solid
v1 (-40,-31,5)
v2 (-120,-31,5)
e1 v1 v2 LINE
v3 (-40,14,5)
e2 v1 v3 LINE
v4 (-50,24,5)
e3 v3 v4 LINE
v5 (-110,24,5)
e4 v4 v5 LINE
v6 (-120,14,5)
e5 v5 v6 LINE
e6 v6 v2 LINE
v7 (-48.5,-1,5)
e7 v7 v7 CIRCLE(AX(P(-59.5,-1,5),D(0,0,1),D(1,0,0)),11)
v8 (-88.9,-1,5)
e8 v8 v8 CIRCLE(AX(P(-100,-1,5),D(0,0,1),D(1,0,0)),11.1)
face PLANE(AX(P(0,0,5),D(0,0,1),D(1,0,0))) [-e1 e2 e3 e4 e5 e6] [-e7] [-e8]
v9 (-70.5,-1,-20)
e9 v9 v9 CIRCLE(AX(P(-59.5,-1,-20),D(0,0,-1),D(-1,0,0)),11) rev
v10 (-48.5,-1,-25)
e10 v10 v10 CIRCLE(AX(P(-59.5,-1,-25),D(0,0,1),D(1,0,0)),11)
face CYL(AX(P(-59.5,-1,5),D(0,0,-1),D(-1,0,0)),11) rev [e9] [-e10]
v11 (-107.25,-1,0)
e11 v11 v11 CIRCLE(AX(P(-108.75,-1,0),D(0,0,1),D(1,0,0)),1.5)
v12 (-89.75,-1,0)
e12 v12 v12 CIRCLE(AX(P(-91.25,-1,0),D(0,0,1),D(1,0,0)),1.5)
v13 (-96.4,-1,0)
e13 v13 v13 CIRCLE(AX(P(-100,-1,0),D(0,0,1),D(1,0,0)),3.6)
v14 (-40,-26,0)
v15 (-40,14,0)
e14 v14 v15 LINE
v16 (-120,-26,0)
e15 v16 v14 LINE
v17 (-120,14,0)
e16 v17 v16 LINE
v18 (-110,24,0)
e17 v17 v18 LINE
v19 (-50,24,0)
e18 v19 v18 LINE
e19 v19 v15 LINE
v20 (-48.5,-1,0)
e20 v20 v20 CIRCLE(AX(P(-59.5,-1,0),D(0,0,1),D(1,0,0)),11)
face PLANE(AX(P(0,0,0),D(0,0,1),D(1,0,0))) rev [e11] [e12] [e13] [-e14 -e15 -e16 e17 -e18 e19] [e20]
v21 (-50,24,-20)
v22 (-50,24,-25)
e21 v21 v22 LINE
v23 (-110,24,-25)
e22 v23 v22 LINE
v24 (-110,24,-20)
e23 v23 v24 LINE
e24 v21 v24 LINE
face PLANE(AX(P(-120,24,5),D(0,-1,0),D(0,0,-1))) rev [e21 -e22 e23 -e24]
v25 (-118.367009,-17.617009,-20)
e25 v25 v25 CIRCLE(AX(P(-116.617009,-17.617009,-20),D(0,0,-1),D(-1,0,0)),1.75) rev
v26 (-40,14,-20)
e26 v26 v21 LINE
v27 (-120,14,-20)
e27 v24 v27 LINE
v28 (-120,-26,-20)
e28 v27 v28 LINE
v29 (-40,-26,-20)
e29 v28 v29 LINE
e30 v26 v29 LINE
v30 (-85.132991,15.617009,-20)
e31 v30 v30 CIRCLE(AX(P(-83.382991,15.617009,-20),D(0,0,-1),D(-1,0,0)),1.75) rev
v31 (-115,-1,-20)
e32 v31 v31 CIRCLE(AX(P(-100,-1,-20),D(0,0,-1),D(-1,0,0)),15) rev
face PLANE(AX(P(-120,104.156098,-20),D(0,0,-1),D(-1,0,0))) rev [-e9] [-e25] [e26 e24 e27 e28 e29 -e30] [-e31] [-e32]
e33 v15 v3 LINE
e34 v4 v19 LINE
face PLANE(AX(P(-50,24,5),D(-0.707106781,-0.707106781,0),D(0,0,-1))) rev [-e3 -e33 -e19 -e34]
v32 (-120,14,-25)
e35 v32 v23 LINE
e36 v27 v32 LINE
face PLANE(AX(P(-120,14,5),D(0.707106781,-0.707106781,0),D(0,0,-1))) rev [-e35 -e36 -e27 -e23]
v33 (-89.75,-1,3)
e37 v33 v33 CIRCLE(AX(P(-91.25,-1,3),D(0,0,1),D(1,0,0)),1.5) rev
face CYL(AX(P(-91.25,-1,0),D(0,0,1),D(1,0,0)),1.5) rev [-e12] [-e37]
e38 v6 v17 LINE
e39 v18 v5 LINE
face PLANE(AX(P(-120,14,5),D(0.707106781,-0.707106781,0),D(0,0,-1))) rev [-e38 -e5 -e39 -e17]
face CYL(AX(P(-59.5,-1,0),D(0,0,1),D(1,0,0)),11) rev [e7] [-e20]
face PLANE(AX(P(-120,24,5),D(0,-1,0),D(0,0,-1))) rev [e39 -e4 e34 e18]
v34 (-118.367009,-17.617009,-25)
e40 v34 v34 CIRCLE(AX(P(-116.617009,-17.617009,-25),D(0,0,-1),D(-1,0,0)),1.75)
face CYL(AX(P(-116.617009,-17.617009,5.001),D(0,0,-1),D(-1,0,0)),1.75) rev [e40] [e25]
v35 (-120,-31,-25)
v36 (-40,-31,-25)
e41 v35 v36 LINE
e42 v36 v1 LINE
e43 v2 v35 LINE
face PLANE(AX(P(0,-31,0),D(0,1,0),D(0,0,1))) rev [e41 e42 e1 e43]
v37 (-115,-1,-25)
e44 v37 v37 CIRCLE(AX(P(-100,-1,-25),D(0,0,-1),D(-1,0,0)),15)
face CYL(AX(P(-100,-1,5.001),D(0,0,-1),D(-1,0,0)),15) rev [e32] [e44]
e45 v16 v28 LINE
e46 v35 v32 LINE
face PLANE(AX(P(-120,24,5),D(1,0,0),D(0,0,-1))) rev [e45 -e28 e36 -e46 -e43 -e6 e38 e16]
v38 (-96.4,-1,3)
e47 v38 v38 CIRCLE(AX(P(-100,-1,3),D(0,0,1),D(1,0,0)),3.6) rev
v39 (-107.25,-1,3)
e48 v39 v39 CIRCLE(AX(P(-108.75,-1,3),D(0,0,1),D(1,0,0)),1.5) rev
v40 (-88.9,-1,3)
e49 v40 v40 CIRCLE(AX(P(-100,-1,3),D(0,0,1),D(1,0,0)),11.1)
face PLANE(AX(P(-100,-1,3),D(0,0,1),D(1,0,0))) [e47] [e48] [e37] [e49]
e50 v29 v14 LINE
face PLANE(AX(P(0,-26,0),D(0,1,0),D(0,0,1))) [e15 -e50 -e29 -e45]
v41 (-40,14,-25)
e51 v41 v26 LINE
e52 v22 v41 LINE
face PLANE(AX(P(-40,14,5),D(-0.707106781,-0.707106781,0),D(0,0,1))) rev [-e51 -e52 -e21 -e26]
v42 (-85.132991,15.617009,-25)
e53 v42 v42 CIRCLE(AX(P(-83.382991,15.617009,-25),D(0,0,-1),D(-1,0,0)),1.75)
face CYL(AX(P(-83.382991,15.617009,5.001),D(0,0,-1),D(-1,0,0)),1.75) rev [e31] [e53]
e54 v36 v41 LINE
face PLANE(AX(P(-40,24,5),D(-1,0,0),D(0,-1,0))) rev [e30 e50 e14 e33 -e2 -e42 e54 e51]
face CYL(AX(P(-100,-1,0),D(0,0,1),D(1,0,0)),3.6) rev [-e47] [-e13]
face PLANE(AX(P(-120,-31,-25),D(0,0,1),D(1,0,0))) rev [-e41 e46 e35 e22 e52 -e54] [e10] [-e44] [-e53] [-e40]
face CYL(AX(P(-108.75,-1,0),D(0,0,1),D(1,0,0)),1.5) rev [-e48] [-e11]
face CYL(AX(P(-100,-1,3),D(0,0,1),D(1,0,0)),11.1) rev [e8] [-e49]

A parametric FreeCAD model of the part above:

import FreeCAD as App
import Part
import Sketcher
from FreeCAD import Vector


def edges_at(feature, points):
    """Names of the edges that pass closest to the given points."""
    edges = feature.Shape.Edges
    near = lambda p: min(range(len(edges)), key=lambda i: edges[i].distToShape(Part.Vertex(*p))[0])
    return sorted({f"Edge{near(p) + 1}" for p in points})

doc = App.newDocument("Part")
body = doc.addObject("PartDesign::Body", "Body")

sketch1 = body.newObject("Sketcher::SketchObject", "Sketch")
sketch1.AttachmentSupport = (doc.getObject("XY_Plane"), [""])
sketch1.MapMode = "FlatFace"
sketch1.addGeometry(Part.LineSegment(Vector(-120, 24, 0), Vector(-120, -26, 0)), False)
sketch1.addGeometry(Part.LineSegment(Vector(-120, -26, 0), Vector(-40, -26, 0)), False)
sketch1.addGeometry(Part.LineSegment(Vector(-40, -26, 0), Vector(-40, 24, 0)), False)
sketch1.addGeometry(Part.LineSegment(Vector(-40, 24, 0), Vector(-120, 24, 0)), False)
sketch1.addConstraint(Sketcher.Constraint("Coincident", 0, 2, 1, 1))
sketch1.addConstraint(Sketcher.Constraint("Coincident", 1, 2, 2, 1))
sketch1.addConstraint(Sketcher.Constraint("Coincident", 2, 2, 3, 1))
sketch1.addConstraint(Sketcher.Constraint("Coincident", 3, 2, 0, 1))
sketch1.addConstraint(Sketcher.Constraint("Vertical", 0))
sketch1.addConstraint(Sketcher.Constraint("Horizontal", 1))
sketch1.addConstraint(Sketcher.Constraint("Vertical", 2))
sketch1.addConstraint(Sketcher.Constraint("Horizontal", 3))
sketch1.addConstraint(Sketcher.Constraint("DistanceX", 1, 1, 1, 2, 80.0))
sketch1.addConstraint(Sketcher.Constraint("DistanceY", 0, 2, 0, 1, 50.0))
sketch1.addConstraint(Sketcher.Constraint("DistanceX", 0, 2, -1, 1, 120.0))
sketch1.addConstraint(Sketcher.Constraint("DistanceY", 0, 2, -1, 1, 26.0))
pad1 = body.newObject("PartDesign::Pad", "Pad")
pad1.Profile = sketch1
pad1.Length = 5

sketch2 = body.newObject("Sketcher::SketchObject", "Sketch001")
sketch2.AttachmentSupport = (doc.getObject("XY_Plane"), [""])
sketch2.MapMode = "FlatFace"
sketch2.AttachmentOffset = App.Placement(Vector(0, 0, 5), App.Rotation())
sketch2.addGeometry(Part.Circle(Vector(-100, -1, 0), Vector(0, 0, 1), 3.6), False)
sketch2.addConstraint(Sketcher.Constraint("Diameter", 0, 7.2))
sketch2.addConstraint(Sketcher.Constraint("DistanceX", 0, 3, -1, 1, 100.0))
sketch2.addConstraint(Sketcher.Constraint("DistanceY", 0, 3, -1, 1, 1.0))
pocket1 = body.newObject("PartDesign::Pocket", "Pocket")
pocket1.Profile = sketch2
pocket1.Type = "ThroughAll"

sketch3 = body.newObject("Sketcher::SketchObject", "Sketch002")
sketch3.AttachmentSupport = (doc.getObject("XY_Plane"), [""])
sketch3.MapMode = "FlatFace"
sketch3.AttachmentOffset = App.Placement(Vector(0, 0, 5), App.Rotation())
sketch3.addGeometry(Part.Circle(Vector(-91.2, -1, 0), Vector(0, 0, 1), 1.5), False)
sketch3.addGeometry(Part.Circle(Vector(-108.8, -1, 0), Vector(0, 0, 1), 1.5), False)
sketch3.addConstraint(Sketcher.Constraint("Equal", 0, 1))
sketch3.addConstraint(Sketcher.Constraint("Horizontal", 0, 3, 1, 3))
sketch3.addConstraint(Sketcher.Constraint("Diameter", 0, 3.0))
sketch3.addConstraint(Sketcher.Constraint("DistanceY", 0, 3, -1, 1, 1.0))
sketch3.addConstraint(Sketcher.Constraint("DistanceX", 1, 3, 0, 3, 17.5))
sketch3.addConstraint(Sketcher.Constraint("DistanceX", 0, 3, -1, 1, 91.25))
pocket2 = body.newObject("PartDesign::Pocket", "Pocket001")
pocket2.Profile = sketch3
pocket2.Type = "ThroughAll"

sketch4 = body.newObject("Sketcher::SketchObject", "Sketch003")
sketch4.AttachmentSupport = (doc.getObject("XY_Plane"), [""])
sketch4.MapMode = "FlatFace"
sketch4.AttachmentOffset = App.Placement(Vector(0, 0, 5), App.Rotation())
sketch4.addGeometry(Part.Circle(Vector(-100, -1, 0), Vector(0, 0, 1), 11), False)
sketch4.addConstraint(Sketcher.Constraint("Diameter", 0, 22.2))
sketch4.addConstraint(Sketcher.Constraint("DistanceX", 0, 3, -1, 1, 100.0))
sketch4.addConstraint(Sketcher.Constraint("DistanceY", 0, 3, -1, 1, 1.0))
pocket3 = body.newObject("PartDesign::Pocket", "Pocket002")
pocket3.Profile = sketch4
pocket3.Length = 2

sketch5 = body.newObject("Sketcher::SketchObject", "Sketch004")
sketch5.AttachmentSupport = (doc.getObject("XY_Plane"), [""])
sketch5.MapMode = "FlatFace"
sketch5.AttachmentOffset = App.Placement(Vector(0, 0, 5), App.Rotation())
sketch5.addGeometry(Part.Circle(Vector(-60, -1, 0), Vector(0, 0, 1), 11), False)
sketch5.addConstraint(Sketcher.Constraint("Diameter", 0, 22.0))
sketch5.addConstraint(Sketcher.Constraint("DistanceY", 0, 3, -1, 1, 1.0))
sketch5.addConstraint(Sketcher.Constraint("DistanceX", 0, 3, -1, 1, 59.5))
pocket4 = body.newObject("PartDesign::Pocket", "Pocket003")
pocket4.Profile = sketch5
pocket4.Type = "ThroughAll"

sketch6 = body.newObject("Sketcher::SketchObject", "Sketch005")
sketch6.AttachmentSupport = (doc.getObject("XZ_Plane"), [""])
sketch6.MapMode = "FlatFace"
sketch6.AttachmentOffset = App.Placement(Vector(0, 0, 26), App.Rotation())
sketch6.addGeometry(Part.LineSegment(Vector(-120, 5, 0), Vector(-120, -25, 0)), False)
sketch6.addGeometry(Part.LineSegment(Vector(-120, -25, 0), Vector(-40, -25, 0)), False)
sketch6.addGeometry(Part.LineSegment(Vector(-40, -25, 0), Vector(-40, 5, 0)), False)
sketch6.addGeometry(Part.LineSegment(Vector(-40, 5, 0), Vector(-120, 5, 0)), False)
sketch6.addConstraint(Sketcher.Constraint("Coincident", 0, 2, 1, 1))
sketch6.addConstraint(Sketcher.Constraint("Coincident", 1, 2, 2, 1))
sketch6.addConstraint(Sketcher.Constraint("Coincident", 2, 2, 3, 1))
sketch6.addConstraint(Sketcher.Constraint("Coincident", 3, 2, 0, 1))
sketch6.addConstraint(Sketcher.Constraint("Vertical", 0))
sketch6.addConstraint(Sketcher.Constraint("Horizontal", 1))
sketch6.addConstraint(Sketcher.Constraint("Vertical", 2))
sketch6.addConstraint(Sketcher.Constraint("Horizontal", 3))
sketch6.addConstraint(Sketcher.Constraint("DistanceX", 1, 1, 1, 2, 80.0))
sketch6.addConstraint(Sketcher.Constraint("DistanceY", 0, 2, 0, 1, 30.0))
sketch6.addConstraint(Sketcher.Constraint("DistanceX", 0, 2, -1, 1, 120.0))
sketch6.addConstraint(Sketcher.Constraint("DistanceY", 0, 2, -1, 1, 25.0))
pad2 = body.newObject("PartDesign::Pad", "Pad001")
pad2.Profile = sketch6
pad2.Length = 5

sketch7 = body.newObject("Sketcher::SketchObject", "Sketch006")
sketch7.AttachmentSupport = (doc.getObject("XZ_Plane"), [""])
sketch7.MapMode = "FlatFace"
sketch7.AttachmentOffset = App.Placement(Vector(0, 0, 26), App.Rotation())
sketch7.addGeometry(Part.LineSegment(Vector(-120, -25, 0), Vector(-120, -20, 0)), False)
sketch7.addGeometry(Part.LineSegment(Vector(-120, -20, 0), Vector(-40, -20, 0)), False)
sketch7.addGeometry(Part.LineSegment(Vector(-40, -20, 0), Vector(-40, -25, 0)), False)
sketch7.addGeometry(Part.LineSegment(Vector(-40, -25, 0), Vector(-120, -25, 0)), False)
sketch7.addConstraint(Sketcher.Constraint("Coincident", 0, 2, 1, 1))
sketch7.addConstraint(Sketcher.Constraint("Coincident", 1, 2, 2, 1))
sketch7.addConstraint(Sketcher.Constraint("Coincident", 2, 2, 3, 1))
sketch7.addConstraint(Sketcher.Constraint("Coincident", 3, 2, 0, 1))
sketch7.addConstraint(Sketcher.Constraint("Vertical", 0))
sketch7.addConstraint(Sketcher.Constraint("Horizontal", 1))
sketch7.addConstraint(Sketcher.Constraint("Vertical", 2))
sketch7.addConstraint(Sketcher.Constraint("Horizontal", 3))
sketch7.addConstraint(Sketcher.Constraint("DistanceX", 1, 1, 1, 2, 80.0))
sketch7.addConstraint(Sketcher.Constraint("DistanceY", 0, 1, 0, 2, 5.0))
sketch7.addConstraint(Sketcher.Constraint("DistanceX", 0, 2, -1, 1, 120.0))
sketch7.addConstraint(Sketcher.Constraint("DistanceY", 0, 2, -1, 1, 20.0))
pad3 = body.newObject("PartDesign::Pad", "Pad002")
pad3.Profile = sketch7
pad3.Length = 50
pad3.Reversed = True

sketch8 = body.newObject("Sketcher::SketchObject", "Sketch007")
sketch8.AttachmentSupport = (doc.getObject("XY_Plane"), [""])
sketch8.MapMode = "FlatFace"
sketch8.AttachmentOffset = App.Placement(Vector(0, 0, -25), App.Rotation())
sketch8.addGeometry(Part.Circle(Vector(-100, -1, 0), Vector(0, 0, 1), 15), False)
sketch8.addConstraint(Sketcher.Constraint("Diameter", 0, 30.0))
sketch8.addConstraint(Sketcher.Constraint("DistanceX", 0, 3, -1, 1, 100.0))
sketch8.addConstraint(Sketcher.Constraint("DistanceY", 0, 3, -1, 1, 1.0))
pocket5 = body.newObject("PartDesign::Pocket", "Pocket004")
pocket5.Profile = sketch8
pocket5.Type = "UpToFirst"
pocket5.Reversed = True

sketch9 = body.newObject("Sketcher::SketchObject", "Sketch008")
sketch9.AttachmentSupport = (doc.getObject("XY_Plane"), [""])
sketch9.MapMode = "FlatFace"
sketch9.AttachmentOffset = App.Placement(Vector(0, 0, -25), App.Rotation())
sketch9.addGeometry(Part.Circle(Vector(-83.4, 15.6, 0), Vector(0, 0, 1), 1.8), False)
sketch9.addConstraint(Sketcher.Constraint("Diameter", 0, 3.5))
sketch9.addConstraint(Sketcher.Constraint("DistanceX", 0, 3, -1, 1, 83.382991))
sketch9.addConstraint(Sketcher.Constraint("DistanceY", -1, 1, 0, 3, 15.617009))
pocket6 = body.newObject("PartDesign::Pocket", "Pocket005")
pocket6.Profile = sketch9
pocket6.Type = "UpToFirst"
pocket6.Reversed = True

sketch10 = body.newObject("Sketcher::SketchObject", "Sketch009")
sketch10.AttachmentSupport = (doc.getObject("XY_Plane"), [""])
sketch10.MapMode = "FlatFace"
sketch10.AttachmentOffset = App.Placement(Vector(0, 0, -25), App.Rotation())
sketch10.addGeometry(Part.Circle(Vector(-116.6, -17.6, 0), Vector(0, 0, 1), 1.8), False)
sketch10.addConstraint(Sketcher.Constraint("Diameter", 0, 3.5))
sketch10.addConstraint(Sketcher.Constraint("DistanceX", 0, 3, -1, 1, 116.617009))
sketch10.addConstraint(Sketcher.Constraint("DistanceY", 0, 3, -1, 1, 17.617009))
pocket7 = body.newObject("PartDesign::Pocket", "Pocket006")
pocket7.Profile = sketch10
pocket7.Type = "UpToFirst"
pocket7.Reversed = True
doc.recompute()

datumplane = body.newObject("PartDesign::Plane", "DatumPlane")
datumplane.AttachmentSupport = (doc.getObject("XY_Plane"), [""])
datumplane.MapMode = "FlatFace"
datumplane.AttachmentOffset = App.Placement(Vector(0, 0, -10), App.Rotation())
mirrored = body.newObject("PartDesign::Mirrored", "Mirrored")
mirrored.Originals = [pocket4]
mirrored.MirrorPlane = (datumplane, [""])
body.Tip = mirrored
doc.recompute()

chamfer = body.newObject("PartDesign::Chamfer", "Chamfer")
chamfer.Base = (mirrored, edges_at(mirrored, [
    (-40, 24, -22.5),
    (-120, 24, -22.5),
    (-120, 24, 2.5),
    (-40, 24, 2.5),
]))
chamfer.Size = 10

doc.recompute()
